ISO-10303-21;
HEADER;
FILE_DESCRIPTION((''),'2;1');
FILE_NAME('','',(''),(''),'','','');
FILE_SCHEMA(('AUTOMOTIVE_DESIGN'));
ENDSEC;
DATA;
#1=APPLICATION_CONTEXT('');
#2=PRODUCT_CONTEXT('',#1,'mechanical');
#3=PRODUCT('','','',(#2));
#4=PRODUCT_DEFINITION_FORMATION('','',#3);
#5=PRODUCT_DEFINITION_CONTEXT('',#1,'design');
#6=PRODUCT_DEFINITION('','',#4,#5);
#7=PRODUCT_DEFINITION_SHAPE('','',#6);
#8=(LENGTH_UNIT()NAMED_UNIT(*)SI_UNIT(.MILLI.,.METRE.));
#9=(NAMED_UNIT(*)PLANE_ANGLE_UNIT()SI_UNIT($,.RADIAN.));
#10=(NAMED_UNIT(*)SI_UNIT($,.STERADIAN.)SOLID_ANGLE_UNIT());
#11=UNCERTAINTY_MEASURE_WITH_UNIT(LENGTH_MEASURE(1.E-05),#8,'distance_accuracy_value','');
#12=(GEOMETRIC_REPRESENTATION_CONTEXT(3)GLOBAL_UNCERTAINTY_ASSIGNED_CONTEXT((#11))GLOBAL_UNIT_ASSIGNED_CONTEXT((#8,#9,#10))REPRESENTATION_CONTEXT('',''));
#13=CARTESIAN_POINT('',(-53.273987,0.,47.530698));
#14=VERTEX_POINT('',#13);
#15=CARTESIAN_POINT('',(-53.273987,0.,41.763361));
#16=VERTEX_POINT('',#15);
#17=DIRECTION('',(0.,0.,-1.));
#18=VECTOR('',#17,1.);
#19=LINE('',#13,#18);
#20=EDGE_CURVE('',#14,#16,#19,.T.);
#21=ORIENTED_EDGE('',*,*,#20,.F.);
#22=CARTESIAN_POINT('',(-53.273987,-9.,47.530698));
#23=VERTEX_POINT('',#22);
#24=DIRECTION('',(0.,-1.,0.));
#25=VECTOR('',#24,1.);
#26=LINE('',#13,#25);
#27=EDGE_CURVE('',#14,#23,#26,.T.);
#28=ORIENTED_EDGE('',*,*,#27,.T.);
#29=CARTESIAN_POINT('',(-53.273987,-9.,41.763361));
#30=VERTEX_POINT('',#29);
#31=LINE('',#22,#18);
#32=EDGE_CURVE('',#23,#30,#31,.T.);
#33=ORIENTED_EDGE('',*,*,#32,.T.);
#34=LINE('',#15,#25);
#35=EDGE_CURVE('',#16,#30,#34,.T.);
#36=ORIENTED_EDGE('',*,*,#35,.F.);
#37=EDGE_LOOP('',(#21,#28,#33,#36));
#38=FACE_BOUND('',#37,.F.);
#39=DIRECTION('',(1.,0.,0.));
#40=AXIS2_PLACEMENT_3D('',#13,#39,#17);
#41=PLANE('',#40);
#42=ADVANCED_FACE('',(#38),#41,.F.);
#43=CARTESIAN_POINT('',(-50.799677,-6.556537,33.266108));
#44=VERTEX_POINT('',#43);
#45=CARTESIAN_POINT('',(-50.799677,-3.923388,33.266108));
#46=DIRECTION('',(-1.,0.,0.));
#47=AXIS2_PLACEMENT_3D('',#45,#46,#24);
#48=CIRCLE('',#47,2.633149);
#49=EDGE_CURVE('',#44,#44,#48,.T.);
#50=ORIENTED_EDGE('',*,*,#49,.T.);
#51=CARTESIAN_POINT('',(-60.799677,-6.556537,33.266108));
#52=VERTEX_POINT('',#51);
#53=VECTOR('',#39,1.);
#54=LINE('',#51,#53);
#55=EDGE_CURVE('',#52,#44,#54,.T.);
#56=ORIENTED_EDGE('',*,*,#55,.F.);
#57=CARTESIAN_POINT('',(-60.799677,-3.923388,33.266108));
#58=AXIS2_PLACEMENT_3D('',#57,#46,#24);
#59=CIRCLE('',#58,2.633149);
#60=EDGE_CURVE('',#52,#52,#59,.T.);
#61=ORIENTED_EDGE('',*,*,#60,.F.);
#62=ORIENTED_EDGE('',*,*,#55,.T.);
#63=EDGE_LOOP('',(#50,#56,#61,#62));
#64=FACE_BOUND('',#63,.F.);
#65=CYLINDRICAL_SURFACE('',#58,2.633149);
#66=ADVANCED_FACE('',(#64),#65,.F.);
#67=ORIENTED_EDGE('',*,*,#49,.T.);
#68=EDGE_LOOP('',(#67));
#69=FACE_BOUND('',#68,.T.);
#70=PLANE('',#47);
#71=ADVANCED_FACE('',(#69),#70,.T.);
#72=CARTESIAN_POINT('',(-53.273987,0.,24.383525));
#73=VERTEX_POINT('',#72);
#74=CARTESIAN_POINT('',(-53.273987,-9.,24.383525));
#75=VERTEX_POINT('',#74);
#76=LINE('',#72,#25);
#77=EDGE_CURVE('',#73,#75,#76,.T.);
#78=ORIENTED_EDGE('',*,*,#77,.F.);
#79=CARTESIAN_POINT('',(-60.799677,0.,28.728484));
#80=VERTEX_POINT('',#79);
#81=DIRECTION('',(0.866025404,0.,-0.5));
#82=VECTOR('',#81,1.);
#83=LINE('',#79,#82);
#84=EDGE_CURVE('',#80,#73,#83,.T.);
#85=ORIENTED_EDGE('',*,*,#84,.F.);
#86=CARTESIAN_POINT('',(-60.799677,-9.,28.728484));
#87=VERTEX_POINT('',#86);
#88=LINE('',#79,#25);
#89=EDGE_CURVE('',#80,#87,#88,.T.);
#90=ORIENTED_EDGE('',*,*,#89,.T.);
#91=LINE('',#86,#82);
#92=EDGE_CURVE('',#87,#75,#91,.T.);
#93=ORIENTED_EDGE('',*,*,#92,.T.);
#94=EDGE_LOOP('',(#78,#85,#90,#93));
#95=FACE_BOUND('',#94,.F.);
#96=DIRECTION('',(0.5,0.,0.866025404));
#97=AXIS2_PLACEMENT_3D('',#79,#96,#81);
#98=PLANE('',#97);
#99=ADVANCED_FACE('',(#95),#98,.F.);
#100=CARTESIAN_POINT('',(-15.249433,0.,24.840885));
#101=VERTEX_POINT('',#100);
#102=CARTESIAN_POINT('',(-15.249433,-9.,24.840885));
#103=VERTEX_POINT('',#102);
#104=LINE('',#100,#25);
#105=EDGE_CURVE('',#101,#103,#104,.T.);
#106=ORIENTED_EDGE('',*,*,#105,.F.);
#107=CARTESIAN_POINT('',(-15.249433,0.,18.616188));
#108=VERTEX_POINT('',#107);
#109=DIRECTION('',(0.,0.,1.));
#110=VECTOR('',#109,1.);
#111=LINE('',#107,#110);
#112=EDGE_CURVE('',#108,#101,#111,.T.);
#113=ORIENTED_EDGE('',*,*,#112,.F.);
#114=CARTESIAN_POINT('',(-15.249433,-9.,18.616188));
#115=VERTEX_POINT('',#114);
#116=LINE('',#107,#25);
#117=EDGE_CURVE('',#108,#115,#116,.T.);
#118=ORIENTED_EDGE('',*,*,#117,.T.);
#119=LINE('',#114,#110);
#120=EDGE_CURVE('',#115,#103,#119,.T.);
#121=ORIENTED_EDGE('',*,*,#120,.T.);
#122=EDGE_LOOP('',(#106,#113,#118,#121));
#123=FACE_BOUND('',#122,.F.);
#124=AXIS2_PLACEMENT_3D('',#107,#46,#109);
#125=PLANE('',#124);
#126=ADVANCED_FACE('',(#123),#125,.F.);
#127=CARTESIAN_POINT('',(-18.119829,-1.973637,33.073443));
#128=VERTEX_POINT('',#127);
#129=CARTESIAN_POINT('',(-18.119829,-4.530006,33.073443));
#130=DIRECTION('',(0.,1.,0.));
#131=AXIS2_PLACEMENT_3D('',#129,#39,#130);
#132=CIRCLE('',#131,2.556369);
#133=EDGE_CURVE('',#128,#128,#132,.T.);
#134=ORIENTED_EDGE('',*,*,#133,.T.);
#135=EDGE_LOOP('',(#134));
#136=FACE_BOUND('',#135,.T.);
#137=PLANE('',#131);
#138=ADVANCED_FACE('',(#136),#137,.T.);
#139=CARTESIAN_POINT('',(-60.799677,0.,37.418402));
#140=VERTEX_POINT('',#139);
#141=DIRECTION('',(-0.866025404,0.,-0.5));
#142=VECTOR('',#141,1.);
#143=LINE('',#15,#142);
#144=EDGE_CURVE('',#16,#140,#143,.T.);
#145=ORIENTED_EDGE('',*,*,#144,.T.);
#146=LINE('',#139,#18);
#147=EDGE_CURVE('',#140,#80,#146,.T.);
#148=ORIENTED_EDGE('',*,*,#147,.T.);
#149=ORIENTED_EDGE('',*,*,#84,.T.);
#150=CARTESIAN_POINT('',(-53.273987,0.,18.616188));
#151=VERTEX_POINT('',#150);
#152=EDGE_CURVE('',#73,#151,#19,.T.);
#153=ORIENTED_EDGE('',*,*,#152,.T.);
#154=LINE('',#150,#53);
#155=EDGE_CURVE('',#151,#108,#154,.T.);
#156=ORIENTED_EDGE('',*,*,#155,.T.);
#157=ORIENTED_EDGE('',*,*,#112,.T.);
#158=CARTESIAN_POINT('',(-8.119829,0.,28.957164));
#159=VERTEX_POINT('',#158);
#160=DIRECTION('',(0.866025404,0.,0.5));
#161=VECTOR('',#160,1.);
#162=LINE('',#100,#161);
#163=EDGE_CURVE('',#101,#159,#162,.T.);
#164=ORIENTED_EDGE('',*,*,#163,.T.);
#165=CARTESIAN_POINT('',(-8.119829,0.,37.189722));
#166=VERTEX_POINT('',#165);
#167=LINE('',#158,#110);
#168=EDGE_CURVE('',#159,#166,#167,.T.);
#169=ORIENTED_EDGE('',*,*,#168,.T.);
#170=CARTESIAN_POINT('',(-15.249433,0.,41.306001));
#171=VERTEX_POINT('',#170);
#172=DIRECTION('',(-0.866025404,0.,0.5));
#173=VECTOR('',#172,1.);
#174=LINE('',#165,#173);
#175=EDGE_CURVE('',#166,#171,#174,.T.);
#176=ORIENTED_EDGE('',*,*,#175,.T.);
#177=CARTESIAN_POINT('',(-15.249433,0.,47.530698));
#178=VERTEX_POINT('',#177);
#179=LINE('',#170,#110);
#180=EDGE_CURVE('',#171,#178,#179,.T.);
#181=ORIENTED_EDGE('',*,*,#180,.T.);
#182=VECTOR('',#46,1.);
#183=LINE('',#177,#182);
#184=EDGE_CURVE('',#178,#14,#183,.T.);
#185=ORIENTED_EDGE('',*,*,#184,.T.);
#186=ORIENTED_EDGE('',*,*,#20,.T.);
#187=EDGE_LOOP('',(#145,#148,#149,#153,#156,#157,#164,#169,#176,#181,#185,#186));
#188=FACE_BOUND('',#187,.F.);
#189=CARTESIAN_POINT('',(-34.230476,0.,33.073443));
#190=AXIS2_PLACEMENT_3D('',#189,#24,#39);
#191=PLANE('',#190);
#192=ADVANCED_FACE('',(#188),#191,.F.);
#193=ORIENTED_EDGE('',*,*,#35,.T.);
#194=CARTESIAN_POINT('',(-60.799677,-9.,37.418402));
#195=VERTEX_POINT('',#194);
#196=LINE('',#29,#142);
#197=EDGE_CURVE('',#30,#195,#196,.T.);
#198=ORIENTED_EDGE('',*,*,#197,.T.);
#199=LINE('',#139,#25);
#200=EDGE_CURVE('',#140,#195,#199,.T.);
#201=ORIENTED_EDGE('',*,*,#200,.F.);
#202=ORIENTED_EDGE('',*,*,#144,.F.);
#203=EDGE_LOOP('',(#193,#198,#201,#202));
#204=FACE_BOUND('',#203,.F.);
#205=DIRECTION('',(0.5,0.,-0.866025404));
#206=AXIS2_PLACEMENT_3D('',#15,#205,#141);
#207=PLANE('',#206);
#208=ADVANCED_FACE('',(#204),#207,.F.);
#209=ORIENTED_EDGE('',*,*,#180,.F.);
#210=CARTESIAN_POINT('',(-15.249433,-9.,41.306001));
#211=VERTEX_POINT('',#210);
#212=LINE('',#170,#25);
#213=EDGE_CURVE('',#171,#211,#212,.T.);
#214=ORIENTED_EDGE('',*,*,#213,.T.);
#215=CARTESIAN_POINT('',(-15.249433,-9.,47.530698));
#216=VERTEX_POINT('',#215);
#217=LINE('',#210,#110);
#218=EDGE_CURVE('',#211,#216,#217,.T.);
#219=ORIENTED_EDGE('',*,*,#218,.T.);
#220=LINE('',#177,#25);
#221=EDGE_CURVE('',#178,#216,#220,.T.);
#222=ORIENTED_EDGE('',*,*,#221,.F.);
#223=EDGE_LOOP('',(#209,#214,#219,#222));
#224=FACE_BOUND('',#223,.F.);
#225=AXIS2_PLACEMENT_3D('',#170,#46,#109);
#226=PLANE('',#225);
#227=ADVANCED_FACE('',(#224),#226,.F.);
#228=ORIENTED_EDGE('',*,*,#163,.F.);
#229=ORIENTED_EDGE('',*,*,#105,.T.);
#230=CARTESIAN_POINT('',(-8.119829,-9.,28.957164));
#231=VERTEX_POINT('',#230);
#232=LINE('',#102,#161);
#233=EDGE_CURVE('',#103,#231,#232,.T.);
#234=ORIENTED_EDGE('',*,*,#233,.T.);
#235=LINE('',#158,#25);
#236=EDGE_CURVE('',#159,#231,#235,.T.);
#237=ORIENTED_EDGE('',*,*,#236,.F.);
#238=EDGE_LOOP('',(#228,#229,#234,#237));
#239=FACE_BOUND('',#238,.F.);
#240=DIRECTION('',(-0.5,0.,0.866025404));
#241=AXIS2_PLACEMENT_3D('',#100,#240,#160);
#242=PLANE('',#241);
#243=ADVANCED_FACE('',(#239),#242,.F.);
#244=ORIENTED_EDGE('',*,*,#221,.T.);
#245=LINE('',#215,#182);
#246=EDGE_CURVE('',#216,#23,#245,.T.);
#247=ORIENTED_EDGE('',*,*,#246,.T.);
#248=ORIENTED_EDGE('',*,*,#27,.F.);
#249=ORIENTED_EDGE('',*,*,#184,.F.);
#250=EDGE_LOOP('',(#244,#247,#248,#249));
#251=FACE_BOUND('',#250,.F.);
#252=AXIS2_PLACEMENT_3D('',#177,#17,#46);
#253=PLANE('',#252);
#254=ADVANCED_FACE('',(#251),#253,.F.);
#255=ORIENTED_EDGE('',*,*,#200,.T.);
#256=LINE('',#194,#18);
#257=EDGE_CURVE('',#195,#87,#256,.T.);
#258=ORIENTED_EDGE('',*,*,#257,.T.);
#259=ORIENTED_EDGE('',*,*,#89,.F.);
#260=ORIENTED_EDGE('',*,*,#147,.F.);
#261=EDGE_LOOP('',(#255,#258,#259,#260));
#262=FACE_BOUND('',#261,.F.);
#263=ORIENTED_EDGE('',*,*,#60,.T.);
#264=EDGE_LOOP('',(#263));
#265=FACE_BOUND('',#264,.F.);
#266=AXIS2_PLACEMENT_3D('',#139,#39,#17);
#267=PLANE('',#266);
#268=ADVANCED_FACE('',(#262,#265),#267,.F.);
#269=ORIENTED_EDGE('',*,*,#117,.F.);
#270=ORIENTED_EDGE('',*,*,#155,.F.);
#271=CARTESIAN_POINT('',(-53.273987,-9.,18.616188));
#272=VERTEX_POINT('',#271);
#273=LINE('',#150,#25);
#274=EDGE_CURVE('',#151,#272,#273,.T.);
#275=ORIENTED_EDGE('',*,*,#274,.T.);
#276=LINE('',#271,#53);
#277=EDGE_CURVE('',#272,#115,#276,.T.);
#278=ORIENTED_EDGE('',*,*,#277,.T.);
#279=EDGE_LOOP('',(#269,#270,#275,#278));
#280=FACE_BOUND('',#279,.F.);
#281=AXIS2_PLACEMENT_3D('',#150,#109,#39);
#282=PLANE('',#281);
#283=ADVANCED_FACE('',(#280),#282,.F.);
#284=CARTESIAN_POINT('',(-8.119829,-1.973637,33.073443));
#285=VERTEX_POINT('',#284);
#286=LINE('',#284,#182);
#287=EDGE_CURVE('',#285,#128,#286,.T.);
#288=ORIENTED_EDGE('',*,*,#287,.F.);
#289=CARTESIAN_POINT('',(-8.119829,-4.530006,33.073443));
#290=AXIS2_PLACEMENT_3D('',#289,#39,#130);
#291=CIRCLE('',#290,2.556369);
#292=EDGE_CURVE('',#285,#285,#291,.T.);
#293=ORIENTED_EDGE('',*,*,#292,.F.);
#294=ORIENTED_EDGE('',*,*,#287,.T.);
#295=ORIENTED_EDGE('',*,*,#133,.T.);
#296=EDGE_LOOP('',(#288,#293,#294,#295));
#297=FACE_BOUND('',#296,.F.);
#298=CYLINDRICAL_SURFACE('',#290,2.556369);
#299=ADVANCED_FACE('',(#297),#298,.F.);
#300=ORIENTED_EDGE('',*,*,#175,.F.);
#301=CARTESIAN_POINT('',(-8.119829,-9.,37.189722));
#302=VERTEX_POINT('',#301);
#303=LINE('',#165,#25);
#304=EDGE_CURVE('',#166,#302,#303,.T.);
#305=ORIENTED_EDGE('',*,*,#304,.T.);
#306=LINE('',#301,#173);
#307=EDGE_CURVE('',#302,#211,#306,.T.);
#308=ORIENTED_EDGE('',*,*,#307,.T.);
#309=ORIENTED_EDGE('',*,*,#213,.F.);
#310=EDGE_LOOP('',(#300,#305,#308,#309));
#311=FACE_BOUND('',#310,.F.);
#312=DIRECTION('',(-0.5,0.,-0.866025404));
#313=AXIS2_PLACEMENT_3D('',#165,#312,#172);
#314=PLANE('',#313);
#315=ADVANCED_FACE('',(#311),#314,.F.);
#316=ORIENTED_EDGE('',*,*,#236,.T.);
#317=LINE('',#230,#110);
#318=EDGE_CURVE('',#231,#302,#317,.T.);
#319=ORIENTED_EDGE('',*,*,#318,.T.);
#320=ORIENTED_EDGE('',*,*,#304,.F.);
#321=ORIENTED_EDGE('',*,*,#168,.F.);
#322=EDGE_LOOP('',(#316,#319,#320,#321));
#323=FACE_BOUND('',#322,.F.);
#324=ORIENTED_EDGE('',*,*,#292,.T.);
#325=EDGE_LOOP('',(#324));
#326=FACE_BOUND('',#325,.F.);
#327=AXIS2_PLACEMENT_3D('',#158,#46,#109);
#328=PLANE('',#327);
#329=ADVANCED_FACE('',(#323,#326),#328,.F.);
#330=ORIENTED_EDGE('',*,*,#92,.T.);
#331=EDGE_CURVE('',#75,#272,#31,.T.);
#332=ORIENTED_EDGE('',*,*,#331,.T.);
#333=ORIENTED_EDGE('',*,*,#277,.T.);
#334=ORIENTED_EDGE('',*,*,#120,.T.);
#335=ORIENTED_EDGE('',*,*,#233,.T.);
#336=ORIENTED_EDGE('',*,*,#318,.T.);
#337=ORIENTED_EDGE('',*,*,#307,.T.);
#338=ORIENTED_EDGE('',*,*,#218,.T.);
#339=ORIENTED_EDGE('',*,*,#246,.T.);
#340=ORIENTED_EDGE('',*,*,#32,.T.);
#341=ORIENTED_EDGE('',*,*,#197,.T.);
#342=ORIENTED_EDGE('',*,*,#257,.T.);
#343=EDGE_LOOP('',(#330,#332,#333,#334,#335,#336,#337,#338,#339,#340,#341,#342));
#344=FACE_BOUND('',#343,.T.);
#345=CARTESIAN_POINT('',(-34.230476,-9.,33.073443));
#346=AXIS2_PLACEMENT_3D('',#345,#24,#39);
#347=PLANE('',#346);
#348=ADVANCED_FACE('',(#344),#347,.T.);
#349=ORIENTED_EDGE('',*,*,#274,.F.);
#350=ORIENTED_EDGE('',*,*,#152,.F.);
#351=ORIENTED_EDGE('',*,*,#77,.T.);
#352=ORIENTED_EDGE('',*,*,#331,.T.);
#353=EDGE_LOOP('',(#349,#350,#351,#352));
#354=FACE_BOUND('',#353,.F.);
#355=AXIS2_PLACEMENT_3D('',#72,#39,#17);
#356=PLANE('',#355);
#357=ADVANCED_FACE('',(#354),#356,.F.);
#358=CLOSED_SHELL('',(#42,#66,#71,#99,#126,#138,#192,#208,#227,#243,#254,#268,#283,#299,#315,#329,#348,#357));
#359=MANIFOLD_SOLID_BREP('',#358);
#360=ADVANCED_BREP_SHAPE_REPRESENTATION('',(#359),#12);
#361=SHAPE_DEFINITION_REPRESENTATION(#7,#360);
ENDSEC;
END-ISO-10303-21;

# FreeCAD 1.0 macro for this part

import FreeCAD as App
import Part
import Sketcher
from FreeCAD import Vector
Q = App.Units.Quantity

doc = App.newDocument("Part")
params = doc.addObject("Spreadsheet::Sheet", "Params")
for row, (alias, value) in enumerate([
    ("pad1_length", "9 mm"),
    ("pocket1_length", "10 mm"),
    ("pocket2_length", "10 mm"),
], start=1):
    params.set(f"A{row}", alias)
    params.set(f"B{row}", "=" + value)
    params.setAlias(f"B{row}", alias)

body = doc.addObject("PartDesign::Body", "Body")

sketch1 = body.newObject("Sketcher::SketchObject", "Sketch")
sketch1.AttachmentSupport = (doc.getObject("XZ_Plane"), [""])
sketch1.MapMode = "FlatFace"
sketch1.addGeometry(Part.LineSegment(Vector(-15, 48, 0), Vector(-53, 48, 0)), False)
sketch1.addGeometry(Part.LineSegment(Vector(-53, 48, 0), Vector(-53, 42, 0)), False)
sketch1.addGeometry(Part.LineSegment(Vector(-53, 42, 0), Vector(-61, 37, 0)), False)
sketch1.addGeometry(Part.LineSegment(Vector(-61, 37, 0), Vector(-61, 29, 0)), False)
sketch1.addGeometry(Part.LineSegment(Vector(-61, 29, 0), Vector(-53, 24, 0)), False)
sketch1.addGeometry(Part.LineSegment(Vector(-53, 24, 0), Vector(-53, 19, 0)), False)
sketch1.addGeometry(Part.LineSegment(Vector(-53, 19, 0), Vector(-15, 19, 0)), False)
sketch1.addGeometry(Part.LineSegment(Vector(-15, 19, 0), Vector(-15, 25, 0)), False)
sketch1.addGeometry(Part.LineSegment(Vector(-15, 25, 0), Vector(-8, 29, 0)), False)
sketch1.addGeometry(Part.LineSegment(Vector(-8, 29, 0), Vector(-8, 37, 0)), False)
sketch1.addGeometry(Part.LineSegment(Vector(-8, 37, 0), Vector(-15, 41, 0)), False)
sketch1.addGeometry(Part.LineSegment(Vector(-15, 41, 0), Vector(-15, 48, 0)), False)
sketch1.addConstraint(Sketcher.Constraint("Coincident", 0, 2, 1, 1))
sketch1.addConstraint(Sketcher.Constraint("Coincident", 1, 2, 2, 1))
sketch1.addConstraint(Sketcher.Constraint("Coincident", 2, 2, 3, 1))
sketch1.addConstraint(Sketcher.Constraint("Coincident", 3, 2, 4, 1))
sketch1.addConstraint(Sketcher.Constraint("Coincident", 4, 2, 5, 1))
sketch1.addConstraint(Sketcher.Constraint("Coincident", 5, 2, 6, 1))
sketch1.addConstraint(Sketcher.Constraint("Coincident", 6, 2, 7, 1))
sketch1.addConstraint(Sketcher.Constraint("Coincident", 7, 2, 8, 1))
sketch1.addConstraint(Sketcher.Constraint("Coincident", 8, 2, 9, 1))
sketch1.addConstraint(Sketcher.Constraint("Coincident", 9, 2, 10, 1))
sketch1.addConstraint(Sketcher.Constraint("Coincident", 10, 2, 11, 1))
sketch1.addConstraint(Sketcher.Constraint("Coincident", 11, 2, 0, 1))
sketch1.addConstraint(Sketcher.Constraint("Horizontal", 0))
sketch1.addConstraint(Sketcher.Constraint("Vertical", 1))
sketch1.addConstraint(Sketcher.Constraint("Vertical", 3))
sketch1.addConstraint(Sketcher.Constraint("Vertical", 5))
sketch1.addConstraint(Sketcher.Constraint("Horizontal", 6))
sketch1.addConstraint(Sketcher.Constraint("Vertical", 7))
sketch1.addConstraint(Sketcher.Constraint("Vertical", 9))
sketch1.addConstraint(Sketcher.Constraint("Vertical", 11))
sketch1.addConstraint(Sketcher.Constraint("Parallel", 2, 8))
sketch1.addConstraint(Sketcher.Constraint("Parallel", 4, 10))
sketch1.addConstraint(Sketcher.Constraint("Vertical", 1, 2, 4, 2))
sketch1.addConstraint(Sketcher.Constraint("Vertical", 7, 2, 10, 2))
sketch1.addConstraint(Sketcher.Constraint("Equal", 1, 5))
sketch1.addConstraint(Sketcher.Constraint("Equal", 7, 11))
sketch1.addConstraint(Sketcher.Constraint("Equal", 2, 4))
sketch1.addConstraint(Sketcher.Constraint("Angle", 2, Q("-150 deg")))
sketch1.addConstraint(Sketcher.Constraint("DistanceY", -1, 1, 10, 2, 41.306001))
sketch1.addConstraint(Sketcher.Constraint("DistanceY", 3, 2, 3, 1, 8.689918))
sketch1.addConstraint(Sketcher.Constraint("Distance", 2, 8.689918))
sketch1.addConstraint(Sketcher.Constraint("DistanceX", 0, 2, 0, 1, 38.024554))
sketch1.addConstraint(Sketcher.Constraint("DistanceY", 1, 2, 1, 1, 5.767336))
sketch1.addConstraint(Sketcher.Constraint("DistanceY", 7, 1, 7, 2, 6.224697))
sketch1.addConstraint(Sketcher.Constraint("DistanceY", 9, 1, 9, 2, 8.232558))
sketch1.addConstraint(Sketcher.Constraint("DistanceX", 8, 2, -1, 1, 8.119829))
pad1 = body.newObject("PartDesign::Pad", "Pad")
pad1.Profile = sketch1
pad1.setExpression("Length", "Params.pad1_length")

sketch2 = body.newObject("Sketcher::SketchObject", "Sketch001")
sketch2.AttachmentSupport = (doc.getObject("YZ_Plane"), [""])
sketch2.MapMode = "FlatFace"
sketch2.AttachmentOffset = App.Placement(Vector(0, 0, -8.119829), App.Rotation())
sketch2.addGeometry(Part.Circle(Vector(-4.5, 33.1, 0), Vector(0, 0, 1), 2.6), False)
sketch2.addConstraint(Sketcher.Constraint("Diameter", 0, 5.112737))
sketch2.addConstraint(Sketcher.Constraint("DistanceX", 0, 3, -1, 1, 4.530006))
sketch2.addConstraint(Sketcher.Constraint("DistanceY", -1, 1, 0, 3, 33.073443))
pocket1 = body.newObject("PartDesign::Pocket", "Pocket")
pocket1.Profile = sketch2
pocket1.setExpression("Length", "Params.pocket1_length")

sketch3 = body.newObject("Sketcher::SketchObject", "Sketch002")
sketch3.AttachmentSupport = (doc.getObject("YZ_Plane"), [""])
sketch3.MapMode = "FlatFace"
sketch3.AttachmentOffset = App.Placement(Vector(0, 0, -60.799677), App.Rotation())
sketch3.addGeometry(Part.Circle(Vector(-3.9, 33.3, 0), Vector(0, 0, 1), 2.6), False)
sketch3.addConstraint(Sketcher.Constraint("Diameter", 0, 5.266298))
sketch3.addConstraint(Sketcher.Constraint("DistanceY", -1, 1, 0, 3, 33.266108))
sketch3.addConstraint(Sketcher.Constraint("DistanceX", 0, 3, -1, 1, 3.923388))
pocket2 = body.newObject("PartDesign::Pocket", "Pocket001")
pocket2.Profile = sketch3
pocket2.setExpression("Length", "Params.pocket2_length")
pocket2.Reversed = True

doc.recompute()
